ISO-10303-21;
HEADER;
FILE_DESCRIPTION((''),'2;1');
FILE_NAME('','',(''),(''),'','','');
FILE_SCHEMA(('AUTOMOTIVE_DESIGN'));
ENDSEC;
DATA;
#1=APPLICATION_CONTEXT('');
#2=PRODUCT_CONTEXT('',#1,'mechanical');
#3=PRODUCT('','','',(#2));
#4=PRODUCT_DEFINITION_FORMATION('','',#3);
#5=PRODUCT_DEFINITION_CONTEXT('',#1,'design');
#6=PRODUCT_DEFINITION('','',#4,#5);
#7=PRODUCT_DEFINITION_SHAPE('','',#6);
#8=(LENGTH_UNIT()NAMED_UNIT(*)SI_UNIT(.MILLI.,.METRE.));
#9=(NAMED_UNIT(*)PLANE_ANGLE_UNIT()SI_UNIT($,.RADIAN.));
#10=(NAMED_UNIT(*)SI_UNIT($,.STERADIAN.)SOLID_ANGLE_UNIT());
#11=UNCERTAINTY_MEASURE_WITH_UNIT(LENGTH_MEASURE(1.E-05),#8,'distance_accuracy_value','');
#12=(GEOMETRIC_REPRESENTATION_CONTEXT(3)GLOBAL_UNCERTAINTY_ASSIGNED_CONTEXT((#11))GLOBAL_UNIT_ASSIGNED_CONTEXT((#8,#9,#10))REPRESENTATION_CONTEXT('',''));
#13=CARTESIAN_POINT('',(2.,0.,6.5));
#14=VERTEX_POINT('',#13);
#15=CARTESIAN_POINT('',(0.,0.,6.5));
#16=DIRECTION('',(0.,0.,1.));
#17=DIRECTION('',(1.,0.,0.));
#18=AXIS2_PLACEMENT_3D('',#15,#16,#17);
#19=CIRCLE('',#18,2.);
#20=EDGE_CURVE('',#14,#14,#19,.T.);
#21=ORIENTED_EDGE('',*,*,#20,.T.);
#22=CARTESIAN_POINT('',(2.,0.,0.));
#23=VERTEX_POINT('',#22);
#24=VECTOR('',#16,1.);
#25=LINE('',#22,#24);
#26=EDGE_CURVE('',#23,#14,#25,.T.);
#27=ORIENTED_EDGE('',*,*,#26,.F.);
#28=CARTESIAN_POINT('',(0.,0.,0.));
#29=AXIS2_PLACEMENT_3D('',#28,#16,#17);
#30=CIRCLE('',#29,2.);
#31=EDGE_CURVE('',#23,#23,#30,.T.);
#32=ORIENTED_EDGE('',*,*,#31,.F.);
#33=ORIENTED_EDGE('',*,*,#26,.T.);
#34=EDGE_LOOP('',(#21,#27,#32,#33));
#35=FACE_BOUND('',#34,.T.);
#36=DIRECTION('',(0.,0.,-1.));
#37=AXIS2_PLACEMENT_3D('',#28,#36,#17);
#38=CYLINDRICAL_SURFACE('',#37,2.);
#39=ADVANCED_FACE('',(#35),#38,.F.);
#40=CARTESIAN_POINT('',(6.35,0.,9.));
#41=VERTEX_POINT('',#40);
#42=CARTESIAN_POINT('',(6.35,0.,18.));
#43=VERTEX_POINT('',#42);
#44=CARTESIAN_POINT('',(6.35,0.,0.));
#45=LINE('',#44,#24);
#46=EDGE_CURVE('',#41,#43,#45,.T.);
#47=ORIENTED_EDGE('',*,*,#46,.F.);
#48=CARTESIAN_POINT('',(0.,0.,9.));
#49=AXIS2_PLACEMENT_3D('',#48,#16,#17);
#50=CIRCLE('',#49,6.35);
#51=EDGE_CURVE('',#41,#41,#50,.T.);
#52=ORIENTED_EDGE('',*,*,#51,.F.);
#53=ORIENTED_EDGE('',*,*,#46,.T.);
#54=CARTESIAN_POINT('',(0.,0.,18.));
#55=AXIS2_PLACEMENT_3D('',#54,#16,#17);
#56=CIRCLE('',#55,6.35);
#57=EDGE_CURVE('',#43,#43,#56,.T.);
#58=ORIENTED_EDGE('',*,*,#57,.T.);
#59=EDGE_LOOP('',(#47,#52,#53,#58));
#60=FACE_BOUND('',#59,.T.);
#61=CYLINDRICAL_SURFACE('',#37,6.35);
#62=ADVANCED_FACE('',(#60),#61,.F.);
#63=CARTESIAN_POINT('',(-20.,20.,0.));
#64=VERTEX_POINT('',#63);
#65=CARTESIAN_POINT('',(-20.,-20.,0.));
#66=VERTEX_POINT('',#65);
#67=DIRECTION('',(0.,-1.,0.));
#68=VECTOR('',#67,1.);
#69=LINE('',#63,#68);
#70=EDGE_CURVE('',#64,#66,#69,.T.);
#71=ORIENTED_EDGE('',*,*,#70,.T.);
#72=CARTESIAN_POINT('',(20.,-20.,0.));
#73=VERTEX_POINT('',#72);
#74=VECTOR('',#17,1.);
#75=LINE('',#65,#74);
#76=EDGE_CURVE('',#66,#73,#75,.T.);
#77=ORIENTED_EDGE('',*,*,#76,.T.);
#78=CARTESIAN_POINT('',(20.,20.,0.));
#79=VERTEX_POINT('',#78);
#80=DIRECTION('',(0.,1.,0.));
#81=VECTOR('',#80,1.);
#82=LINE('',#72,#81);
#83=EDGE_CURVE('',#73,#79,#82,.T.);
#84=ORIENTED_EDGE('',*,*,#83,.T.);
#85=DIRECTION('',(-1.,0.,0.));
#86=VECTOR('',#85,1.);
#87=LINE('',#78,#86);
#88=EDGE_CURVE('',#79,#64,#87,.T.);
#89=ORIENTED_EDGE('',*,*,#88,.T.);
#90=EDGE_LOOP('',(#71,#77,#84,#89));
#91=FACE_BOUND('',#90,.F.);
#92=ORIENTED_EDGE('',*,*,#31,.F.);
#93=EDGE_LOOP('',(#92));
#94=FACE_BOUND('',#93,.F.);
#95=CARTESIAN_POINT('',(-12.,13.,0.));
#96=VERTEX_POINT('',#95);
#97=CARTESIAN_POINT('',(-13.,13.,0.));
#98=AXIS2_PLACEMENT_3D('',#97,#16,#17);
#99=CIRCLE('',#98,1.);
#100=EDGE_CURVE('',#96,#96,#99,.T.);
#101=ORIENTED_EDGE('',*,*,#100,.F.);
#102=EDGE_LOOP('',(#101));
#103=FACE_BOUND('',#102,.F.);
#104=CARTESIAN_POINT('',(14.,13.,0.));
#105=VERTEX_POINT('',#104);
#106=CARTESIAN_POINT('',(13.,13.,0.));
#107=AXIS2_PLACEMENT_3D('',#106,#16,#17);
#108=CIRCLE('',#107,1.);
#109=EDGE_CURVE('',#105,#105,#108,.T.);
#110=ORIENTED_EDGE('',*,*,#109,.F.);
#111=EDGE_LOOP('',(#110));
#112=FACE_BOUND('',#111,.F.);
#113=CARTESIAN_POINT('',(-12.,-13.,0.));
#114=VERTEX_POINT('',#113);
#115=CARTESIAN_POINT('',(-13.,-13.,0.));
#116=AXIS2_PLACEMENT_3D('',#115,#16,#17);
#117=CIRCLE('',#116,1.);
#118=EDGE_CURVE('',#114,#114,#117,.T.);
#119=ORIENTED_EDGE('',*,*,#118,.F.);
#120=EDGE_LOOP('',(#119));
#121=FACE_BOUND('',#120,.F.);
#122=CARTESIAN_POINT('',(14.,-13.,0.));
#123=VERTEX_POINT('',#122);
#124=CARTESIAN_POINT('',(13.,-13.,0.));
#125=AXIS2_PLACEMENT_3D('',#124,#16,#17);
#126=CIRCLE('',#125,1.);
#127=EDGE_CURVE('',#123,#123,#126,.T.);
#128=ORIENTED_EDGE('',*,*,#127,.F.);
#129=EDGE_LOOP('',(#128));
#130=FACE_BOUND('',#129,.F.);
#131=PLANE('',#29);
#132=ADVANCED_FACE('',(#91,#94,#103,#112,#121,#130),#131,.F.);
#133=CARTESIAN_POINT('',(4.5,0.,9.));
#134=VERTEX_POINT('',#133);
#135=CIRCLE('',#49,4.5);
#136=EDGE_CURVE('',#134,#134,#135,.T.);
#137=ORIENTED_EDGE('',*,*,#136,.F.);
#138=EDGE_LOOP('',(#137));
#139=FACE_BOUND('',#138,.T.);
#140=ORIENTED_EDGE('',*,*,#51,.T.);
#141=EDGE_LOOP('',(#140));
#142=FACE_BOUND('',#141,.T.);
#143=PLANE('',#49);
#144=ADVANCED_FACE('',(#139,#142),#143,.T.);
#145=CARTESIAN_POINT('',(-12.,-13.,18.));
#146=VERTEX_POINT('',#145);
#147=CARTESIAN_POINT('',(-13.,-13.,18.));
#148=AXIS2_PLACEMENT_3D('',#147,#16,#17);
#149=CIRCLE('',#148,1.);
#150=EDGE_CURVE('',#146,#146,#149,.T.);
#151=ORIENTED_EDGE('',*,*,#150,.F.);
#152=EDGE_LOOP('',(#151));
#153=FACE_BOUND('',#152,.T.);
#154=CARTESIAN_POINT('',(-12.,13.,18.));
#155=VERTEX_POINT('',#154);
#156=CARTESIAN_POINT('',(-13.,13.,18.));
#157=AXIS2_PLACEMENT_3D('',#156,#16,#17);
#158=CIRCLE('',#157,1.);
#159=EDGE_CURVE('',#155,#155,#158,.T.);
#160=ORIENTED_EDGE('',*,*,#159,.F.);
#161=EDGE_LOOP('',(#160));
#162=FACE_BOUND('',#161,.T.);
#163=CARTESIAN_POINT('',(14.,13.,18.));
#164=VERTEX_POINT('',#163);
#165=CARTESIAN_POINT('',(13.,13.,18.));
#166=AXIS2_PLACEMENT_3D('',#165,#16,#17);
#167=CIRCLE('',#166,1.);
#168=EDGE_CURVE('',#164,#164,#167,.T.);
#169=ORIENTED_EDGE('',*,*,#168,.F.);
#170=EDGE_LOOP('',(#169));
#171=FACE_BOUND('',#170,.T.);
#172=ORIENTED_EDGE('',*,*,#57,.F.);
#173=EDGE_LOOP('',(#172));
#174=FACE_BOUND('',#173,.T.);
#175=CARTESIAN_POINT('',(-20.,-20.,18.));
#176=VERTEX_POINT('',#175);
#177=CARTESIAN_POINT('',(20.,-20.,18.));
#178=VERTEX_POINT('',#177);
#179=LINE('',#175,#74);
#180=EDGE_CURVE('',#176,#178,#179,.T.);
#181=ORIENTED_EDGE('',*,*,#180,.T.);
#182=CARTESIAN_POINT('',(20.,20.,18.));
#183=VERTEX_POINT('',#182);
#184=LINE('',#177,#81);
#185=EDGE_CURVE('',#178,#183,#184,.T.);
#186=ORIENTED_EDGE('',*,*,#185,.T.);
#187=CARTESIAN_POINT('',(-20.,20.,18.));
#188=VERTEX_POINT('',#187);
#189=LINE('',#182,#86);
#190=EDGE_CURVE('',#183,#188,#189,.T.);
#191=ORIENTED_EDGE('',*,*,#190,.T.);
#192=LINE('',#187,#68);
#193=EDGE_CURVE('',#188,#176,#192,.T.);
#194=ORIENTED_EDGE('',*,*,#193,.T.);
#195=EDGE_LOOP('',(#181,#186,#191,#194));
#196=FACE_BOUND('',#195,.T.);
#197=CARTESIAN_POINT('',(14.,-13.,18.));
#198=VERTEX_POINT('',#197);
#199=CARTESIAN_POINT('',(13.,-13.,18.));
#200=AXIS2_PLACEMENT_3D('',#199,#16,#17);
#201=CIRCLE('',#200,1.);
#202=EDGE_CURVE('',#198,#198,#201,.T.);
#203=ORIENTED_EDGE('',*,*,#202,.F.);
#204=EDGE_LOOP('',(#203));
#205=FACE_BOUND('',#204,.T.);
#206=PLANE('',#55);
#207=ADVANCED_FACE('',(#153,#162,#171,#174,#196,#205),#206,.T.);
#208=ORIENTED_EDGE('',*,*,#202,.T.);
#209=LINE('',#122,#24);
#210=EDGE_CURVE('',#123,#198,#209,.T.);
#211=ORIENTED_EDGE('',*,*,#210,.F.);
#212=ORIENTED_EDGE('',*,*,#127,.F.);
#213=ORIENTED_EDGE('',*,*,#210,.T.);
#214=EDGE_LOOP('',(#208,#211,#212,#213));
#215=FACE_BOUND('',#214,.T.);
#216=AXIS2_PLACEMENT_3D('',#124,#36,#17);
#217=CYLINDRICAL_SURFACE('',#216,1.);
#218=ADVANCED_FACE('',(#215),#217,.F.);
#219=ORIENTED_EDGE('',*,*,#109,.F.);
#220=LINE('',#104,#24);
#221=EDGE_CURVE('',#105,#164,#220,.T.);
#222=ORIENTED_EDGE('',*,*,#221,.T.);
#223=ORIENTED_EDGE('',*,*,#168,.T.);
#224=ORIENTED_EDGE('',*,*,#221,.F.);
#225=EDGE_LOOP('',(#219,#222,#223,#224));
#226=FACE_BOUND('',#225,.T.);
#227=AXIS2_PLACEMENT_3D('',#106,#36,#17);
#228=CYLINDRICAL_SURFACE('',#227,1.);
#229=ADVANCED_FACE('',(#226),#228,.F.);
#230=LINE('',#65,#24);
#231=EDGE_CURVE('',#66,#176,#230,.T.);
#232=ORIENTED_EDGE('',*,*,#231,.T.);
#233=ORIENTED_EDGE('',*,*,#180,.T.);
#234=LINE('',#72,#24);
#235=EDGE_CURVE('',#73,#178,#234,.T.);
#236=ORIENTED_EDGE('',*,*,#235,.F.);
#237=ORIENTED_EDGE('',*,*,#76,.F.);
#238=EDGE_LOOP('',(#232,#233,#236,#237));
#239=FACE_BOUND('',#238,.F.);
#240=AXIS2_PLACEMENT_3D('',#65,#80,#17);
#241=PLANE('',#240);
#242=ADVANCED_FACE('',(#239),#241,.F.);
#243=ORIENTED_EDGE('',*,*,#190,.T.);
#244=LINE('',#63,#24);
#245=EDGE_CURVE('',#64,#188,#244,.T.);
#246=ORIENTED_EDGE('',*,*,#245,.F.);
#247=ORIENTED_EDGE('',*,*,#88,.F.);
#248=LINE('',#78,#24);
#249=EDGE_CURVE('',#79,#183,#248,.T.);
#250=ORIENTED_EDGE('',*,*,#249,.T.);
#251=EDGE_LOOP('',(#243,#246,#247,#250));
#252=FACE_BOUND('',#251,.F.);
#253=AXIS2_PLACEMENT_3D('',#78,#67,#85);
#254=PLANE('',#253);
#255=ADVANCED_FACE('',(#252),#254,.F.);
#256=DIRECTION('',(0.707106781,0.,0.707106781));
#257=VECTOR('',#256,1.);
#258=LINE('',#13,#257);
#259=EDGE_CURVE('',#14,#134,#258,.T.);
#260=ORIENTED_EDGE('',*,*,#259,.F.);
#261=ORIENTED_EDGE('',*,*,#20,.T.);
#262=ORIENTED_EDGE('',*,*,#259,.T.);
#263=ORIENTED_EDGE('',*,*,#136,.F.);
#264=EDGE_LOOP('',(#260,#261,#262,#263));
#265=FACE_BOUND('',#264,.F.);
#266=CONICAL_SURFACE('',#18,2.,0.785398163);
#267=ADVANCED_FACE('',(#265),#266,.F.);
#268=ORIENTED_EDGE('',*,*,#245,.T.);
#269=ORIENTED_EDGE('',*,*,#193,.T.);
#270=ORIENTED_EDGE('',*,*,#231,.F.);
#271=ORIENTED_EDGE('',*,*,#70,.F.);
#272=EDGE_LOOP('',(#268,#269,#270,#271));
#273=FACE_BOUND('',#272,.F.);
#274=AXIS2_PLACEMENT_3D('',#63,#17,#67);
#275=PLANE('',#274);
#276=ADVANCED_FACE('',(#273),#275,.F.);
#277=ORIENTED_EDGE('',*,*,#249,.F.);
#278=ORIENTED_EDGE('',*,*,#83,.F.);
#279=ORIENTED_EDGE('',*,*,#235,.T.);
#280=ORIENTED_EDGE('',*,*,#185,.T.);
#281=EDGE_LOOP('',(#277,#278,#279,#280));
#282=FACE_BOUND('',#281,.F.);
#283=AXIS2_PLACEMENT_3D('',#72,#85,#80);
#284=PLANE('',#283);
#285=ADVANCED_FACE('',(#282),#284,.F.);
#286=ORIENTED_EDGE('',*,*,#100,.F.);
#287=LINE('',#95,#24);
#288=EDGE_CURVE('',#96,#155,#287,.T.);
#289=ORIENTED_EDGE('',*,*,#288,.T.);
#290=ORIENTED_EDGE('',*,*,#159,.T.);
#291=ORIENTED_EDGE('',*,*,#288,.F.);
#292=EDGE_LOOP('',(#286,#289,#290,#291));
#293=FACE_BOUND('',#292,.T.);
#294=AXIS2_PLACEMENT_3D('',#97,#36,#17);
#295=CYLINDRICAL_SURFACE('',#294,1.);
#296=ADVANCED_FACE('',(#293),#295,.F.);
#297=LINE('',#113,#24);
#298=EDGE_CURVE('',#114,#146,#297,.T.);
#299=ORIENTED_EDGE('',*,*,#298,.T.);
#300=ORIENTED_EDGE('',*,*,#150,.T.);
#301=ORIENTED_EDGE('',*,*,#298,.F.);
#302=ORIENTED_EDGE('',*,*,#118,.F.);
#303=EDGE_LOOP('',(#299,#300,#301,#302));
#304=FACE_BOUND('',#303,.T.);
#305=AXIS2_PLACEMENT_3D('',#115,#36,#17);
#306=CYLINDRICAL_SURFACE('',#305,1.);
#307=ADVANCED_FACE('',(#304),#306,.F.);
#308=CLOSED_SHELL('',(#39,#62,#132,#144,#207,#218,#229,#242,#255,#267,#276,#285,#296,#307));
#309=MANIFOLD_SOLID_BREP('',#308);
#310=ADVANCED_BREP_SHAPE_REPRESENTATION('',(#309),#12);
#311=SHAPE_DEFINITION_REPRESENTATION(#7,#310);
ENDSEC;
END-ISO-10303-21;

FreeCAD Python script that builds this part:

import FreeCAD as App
import Part
import Sketcher
Q = App.Units.Quantity


def edges_at(feature, points):
    """Names of the edges that pass closest to the given points."""
    edges = feature.Shape.Edges
    near = lambda p: min(range(len(edges)), key=lambda i: edges[i].distToShape(Part.Vertex(*p))[0])
    return sorted({f"Edge{near(p) + 1}" for p in points})

doc = App.newDocument("Part")
body = doc.addObject("PartDesign::Body", "Body")

sketch1 = body.newObject("Sketcher::SketchObject", "Sketch")
sketch1.AttachmentSupport = (doc.getObject("XY_Plane"), [""])
sketch1.MapMode = "FlatFace"
sketch1.addGeometry([
    Part.LineSegment(App.Vector(20, -20, 0), App.Vector(20, 20, 0)),
    Part.LineSegment(App.Vector(20, 20, 0), App.Vector(-20, 20, 0)),
    Part.LineSegment(App.Vector(-20, 20, 0), App.Vector(-20, -20, 0)),
    Part.LineSegment(App.Vector(-20, -20, 0), App.Vector(20, -20, 0)),
    Part.Circle(App.Vector(-13, -13, 0), App.Vector(0, 0, 1), 1),
    Part.Circle(App.Vector(13, -13, 0), App.Vector(0, 0, 1), 1),
    Part.Circle(App.Vector(-13, 13, 0), App.Vector(0, 0, 1), 1),
    Part.Circle(App.Vector(0, 0, 0), App.Vector(0, 0, 1), 6.3),
    Part.Circle(App.Vector(13, 13, 0), App.Vector(0, 0, 1), 1),
], False)
sketch1.addConstraint([
    Sketcher.Constraint("Coincident", 0, 2, 1, 1),
    Sketcher.Constraint("Coincident", 1, 2, 2, 1),
    Sketcher.Constraint("Coincident", 2, 2, 3, 1),
    Sketcher.Constraint("Coincident", 3, 2, 0, 1),
    Sketcher.Constraint("Vertical", 0),
    Sketcher.Constraint("Horizontal", 1),
    Sketcher.Constraint("Vertical", 2),
    Sketcher.Constraint("Horizontal", 3),
    Sketcher.Constraint("Coincident", 7, 3, -1, 1),
    Sketcher.Constraint("Equal", 4, 5),
    Sketcher.Constraint("Equal", 5, 6),
    Sketcher.Constraint("Equal", 6, 8),
    Sketcher.Constraint("Symmetric", 5, 3, 6, 3, -1, 1),
    Sketcher.Constraint("Symmetric", 4, 3, 8, 3, -1, 1),
    Sketcher.Constraint("Symmetric", 0, 2, 2, 2, -1, 1),
    Sketcher.Constraint("Symmetric", 4, 3, 5, 3, -2),
    Sketcher.Constraint("Equal", 3, 0),
    Sketcher.Constraint("Diameter", 4, Q("2 mm")),
    Sketcher.Constraint("Diameter", 7, Q("12.7 mm")),
    Sketcher.Constraint("DistanceX", 1, 2, 1, 1, Q("40 mm")),
    Sketcher.Constraint("DistanceX", 4, 3, 5, 3, Q("26 mm")),
    Sketcher.Constraint("DistanceY", 4, 3, 6, 3, Q("26 mm")),
])
pad1 = body.newObject("PartDesign::Pad", "Pad")
pad1.Profile = sketch1
pad1.Length = 18

sketch2 = body.newObject("Sketcher::SketchObject", "Sketch001")
sketch2.AttachmentSupport = (doc.getObject("XY_Plane"), [""])
sketch2.MapMode = "FlatFace"
sketch2.addGeometry([
    Part.Circle(App.Vector(0, 0, 0), App.Vector(0, 0, 1), 6.3),
    Part.Circle(App.Vector(0, 0, 0), App.Vector(0, 0, 1), 2),
], False)
sketch2.addConstraint([
    Sketcher.Constraint("Coincident", 0, 3, -1, 1),
    Sketcher.Constraint("Coincident", 1, 3, -1, 1),
    Sketcher.Constraint("Diameter", 1, Q("4 mm")),
    Sketcher.Constraint("Diameter", 0, Q("12.7 mm")),
])
pad2 = body.newObject("PartDesign::Pad", "Pad001")
pad2.Profile = sketch2
pad2.Length = 9
doc.recompute()

chamfer = body.newObject("PartDesign::Chamfer", "Chamfer")
chamfer.Base = (pad2, edges_at(pad2, [(-1.865, 0.723, 9)]))
chamfer.Size = 2.5

doc.recompute()
